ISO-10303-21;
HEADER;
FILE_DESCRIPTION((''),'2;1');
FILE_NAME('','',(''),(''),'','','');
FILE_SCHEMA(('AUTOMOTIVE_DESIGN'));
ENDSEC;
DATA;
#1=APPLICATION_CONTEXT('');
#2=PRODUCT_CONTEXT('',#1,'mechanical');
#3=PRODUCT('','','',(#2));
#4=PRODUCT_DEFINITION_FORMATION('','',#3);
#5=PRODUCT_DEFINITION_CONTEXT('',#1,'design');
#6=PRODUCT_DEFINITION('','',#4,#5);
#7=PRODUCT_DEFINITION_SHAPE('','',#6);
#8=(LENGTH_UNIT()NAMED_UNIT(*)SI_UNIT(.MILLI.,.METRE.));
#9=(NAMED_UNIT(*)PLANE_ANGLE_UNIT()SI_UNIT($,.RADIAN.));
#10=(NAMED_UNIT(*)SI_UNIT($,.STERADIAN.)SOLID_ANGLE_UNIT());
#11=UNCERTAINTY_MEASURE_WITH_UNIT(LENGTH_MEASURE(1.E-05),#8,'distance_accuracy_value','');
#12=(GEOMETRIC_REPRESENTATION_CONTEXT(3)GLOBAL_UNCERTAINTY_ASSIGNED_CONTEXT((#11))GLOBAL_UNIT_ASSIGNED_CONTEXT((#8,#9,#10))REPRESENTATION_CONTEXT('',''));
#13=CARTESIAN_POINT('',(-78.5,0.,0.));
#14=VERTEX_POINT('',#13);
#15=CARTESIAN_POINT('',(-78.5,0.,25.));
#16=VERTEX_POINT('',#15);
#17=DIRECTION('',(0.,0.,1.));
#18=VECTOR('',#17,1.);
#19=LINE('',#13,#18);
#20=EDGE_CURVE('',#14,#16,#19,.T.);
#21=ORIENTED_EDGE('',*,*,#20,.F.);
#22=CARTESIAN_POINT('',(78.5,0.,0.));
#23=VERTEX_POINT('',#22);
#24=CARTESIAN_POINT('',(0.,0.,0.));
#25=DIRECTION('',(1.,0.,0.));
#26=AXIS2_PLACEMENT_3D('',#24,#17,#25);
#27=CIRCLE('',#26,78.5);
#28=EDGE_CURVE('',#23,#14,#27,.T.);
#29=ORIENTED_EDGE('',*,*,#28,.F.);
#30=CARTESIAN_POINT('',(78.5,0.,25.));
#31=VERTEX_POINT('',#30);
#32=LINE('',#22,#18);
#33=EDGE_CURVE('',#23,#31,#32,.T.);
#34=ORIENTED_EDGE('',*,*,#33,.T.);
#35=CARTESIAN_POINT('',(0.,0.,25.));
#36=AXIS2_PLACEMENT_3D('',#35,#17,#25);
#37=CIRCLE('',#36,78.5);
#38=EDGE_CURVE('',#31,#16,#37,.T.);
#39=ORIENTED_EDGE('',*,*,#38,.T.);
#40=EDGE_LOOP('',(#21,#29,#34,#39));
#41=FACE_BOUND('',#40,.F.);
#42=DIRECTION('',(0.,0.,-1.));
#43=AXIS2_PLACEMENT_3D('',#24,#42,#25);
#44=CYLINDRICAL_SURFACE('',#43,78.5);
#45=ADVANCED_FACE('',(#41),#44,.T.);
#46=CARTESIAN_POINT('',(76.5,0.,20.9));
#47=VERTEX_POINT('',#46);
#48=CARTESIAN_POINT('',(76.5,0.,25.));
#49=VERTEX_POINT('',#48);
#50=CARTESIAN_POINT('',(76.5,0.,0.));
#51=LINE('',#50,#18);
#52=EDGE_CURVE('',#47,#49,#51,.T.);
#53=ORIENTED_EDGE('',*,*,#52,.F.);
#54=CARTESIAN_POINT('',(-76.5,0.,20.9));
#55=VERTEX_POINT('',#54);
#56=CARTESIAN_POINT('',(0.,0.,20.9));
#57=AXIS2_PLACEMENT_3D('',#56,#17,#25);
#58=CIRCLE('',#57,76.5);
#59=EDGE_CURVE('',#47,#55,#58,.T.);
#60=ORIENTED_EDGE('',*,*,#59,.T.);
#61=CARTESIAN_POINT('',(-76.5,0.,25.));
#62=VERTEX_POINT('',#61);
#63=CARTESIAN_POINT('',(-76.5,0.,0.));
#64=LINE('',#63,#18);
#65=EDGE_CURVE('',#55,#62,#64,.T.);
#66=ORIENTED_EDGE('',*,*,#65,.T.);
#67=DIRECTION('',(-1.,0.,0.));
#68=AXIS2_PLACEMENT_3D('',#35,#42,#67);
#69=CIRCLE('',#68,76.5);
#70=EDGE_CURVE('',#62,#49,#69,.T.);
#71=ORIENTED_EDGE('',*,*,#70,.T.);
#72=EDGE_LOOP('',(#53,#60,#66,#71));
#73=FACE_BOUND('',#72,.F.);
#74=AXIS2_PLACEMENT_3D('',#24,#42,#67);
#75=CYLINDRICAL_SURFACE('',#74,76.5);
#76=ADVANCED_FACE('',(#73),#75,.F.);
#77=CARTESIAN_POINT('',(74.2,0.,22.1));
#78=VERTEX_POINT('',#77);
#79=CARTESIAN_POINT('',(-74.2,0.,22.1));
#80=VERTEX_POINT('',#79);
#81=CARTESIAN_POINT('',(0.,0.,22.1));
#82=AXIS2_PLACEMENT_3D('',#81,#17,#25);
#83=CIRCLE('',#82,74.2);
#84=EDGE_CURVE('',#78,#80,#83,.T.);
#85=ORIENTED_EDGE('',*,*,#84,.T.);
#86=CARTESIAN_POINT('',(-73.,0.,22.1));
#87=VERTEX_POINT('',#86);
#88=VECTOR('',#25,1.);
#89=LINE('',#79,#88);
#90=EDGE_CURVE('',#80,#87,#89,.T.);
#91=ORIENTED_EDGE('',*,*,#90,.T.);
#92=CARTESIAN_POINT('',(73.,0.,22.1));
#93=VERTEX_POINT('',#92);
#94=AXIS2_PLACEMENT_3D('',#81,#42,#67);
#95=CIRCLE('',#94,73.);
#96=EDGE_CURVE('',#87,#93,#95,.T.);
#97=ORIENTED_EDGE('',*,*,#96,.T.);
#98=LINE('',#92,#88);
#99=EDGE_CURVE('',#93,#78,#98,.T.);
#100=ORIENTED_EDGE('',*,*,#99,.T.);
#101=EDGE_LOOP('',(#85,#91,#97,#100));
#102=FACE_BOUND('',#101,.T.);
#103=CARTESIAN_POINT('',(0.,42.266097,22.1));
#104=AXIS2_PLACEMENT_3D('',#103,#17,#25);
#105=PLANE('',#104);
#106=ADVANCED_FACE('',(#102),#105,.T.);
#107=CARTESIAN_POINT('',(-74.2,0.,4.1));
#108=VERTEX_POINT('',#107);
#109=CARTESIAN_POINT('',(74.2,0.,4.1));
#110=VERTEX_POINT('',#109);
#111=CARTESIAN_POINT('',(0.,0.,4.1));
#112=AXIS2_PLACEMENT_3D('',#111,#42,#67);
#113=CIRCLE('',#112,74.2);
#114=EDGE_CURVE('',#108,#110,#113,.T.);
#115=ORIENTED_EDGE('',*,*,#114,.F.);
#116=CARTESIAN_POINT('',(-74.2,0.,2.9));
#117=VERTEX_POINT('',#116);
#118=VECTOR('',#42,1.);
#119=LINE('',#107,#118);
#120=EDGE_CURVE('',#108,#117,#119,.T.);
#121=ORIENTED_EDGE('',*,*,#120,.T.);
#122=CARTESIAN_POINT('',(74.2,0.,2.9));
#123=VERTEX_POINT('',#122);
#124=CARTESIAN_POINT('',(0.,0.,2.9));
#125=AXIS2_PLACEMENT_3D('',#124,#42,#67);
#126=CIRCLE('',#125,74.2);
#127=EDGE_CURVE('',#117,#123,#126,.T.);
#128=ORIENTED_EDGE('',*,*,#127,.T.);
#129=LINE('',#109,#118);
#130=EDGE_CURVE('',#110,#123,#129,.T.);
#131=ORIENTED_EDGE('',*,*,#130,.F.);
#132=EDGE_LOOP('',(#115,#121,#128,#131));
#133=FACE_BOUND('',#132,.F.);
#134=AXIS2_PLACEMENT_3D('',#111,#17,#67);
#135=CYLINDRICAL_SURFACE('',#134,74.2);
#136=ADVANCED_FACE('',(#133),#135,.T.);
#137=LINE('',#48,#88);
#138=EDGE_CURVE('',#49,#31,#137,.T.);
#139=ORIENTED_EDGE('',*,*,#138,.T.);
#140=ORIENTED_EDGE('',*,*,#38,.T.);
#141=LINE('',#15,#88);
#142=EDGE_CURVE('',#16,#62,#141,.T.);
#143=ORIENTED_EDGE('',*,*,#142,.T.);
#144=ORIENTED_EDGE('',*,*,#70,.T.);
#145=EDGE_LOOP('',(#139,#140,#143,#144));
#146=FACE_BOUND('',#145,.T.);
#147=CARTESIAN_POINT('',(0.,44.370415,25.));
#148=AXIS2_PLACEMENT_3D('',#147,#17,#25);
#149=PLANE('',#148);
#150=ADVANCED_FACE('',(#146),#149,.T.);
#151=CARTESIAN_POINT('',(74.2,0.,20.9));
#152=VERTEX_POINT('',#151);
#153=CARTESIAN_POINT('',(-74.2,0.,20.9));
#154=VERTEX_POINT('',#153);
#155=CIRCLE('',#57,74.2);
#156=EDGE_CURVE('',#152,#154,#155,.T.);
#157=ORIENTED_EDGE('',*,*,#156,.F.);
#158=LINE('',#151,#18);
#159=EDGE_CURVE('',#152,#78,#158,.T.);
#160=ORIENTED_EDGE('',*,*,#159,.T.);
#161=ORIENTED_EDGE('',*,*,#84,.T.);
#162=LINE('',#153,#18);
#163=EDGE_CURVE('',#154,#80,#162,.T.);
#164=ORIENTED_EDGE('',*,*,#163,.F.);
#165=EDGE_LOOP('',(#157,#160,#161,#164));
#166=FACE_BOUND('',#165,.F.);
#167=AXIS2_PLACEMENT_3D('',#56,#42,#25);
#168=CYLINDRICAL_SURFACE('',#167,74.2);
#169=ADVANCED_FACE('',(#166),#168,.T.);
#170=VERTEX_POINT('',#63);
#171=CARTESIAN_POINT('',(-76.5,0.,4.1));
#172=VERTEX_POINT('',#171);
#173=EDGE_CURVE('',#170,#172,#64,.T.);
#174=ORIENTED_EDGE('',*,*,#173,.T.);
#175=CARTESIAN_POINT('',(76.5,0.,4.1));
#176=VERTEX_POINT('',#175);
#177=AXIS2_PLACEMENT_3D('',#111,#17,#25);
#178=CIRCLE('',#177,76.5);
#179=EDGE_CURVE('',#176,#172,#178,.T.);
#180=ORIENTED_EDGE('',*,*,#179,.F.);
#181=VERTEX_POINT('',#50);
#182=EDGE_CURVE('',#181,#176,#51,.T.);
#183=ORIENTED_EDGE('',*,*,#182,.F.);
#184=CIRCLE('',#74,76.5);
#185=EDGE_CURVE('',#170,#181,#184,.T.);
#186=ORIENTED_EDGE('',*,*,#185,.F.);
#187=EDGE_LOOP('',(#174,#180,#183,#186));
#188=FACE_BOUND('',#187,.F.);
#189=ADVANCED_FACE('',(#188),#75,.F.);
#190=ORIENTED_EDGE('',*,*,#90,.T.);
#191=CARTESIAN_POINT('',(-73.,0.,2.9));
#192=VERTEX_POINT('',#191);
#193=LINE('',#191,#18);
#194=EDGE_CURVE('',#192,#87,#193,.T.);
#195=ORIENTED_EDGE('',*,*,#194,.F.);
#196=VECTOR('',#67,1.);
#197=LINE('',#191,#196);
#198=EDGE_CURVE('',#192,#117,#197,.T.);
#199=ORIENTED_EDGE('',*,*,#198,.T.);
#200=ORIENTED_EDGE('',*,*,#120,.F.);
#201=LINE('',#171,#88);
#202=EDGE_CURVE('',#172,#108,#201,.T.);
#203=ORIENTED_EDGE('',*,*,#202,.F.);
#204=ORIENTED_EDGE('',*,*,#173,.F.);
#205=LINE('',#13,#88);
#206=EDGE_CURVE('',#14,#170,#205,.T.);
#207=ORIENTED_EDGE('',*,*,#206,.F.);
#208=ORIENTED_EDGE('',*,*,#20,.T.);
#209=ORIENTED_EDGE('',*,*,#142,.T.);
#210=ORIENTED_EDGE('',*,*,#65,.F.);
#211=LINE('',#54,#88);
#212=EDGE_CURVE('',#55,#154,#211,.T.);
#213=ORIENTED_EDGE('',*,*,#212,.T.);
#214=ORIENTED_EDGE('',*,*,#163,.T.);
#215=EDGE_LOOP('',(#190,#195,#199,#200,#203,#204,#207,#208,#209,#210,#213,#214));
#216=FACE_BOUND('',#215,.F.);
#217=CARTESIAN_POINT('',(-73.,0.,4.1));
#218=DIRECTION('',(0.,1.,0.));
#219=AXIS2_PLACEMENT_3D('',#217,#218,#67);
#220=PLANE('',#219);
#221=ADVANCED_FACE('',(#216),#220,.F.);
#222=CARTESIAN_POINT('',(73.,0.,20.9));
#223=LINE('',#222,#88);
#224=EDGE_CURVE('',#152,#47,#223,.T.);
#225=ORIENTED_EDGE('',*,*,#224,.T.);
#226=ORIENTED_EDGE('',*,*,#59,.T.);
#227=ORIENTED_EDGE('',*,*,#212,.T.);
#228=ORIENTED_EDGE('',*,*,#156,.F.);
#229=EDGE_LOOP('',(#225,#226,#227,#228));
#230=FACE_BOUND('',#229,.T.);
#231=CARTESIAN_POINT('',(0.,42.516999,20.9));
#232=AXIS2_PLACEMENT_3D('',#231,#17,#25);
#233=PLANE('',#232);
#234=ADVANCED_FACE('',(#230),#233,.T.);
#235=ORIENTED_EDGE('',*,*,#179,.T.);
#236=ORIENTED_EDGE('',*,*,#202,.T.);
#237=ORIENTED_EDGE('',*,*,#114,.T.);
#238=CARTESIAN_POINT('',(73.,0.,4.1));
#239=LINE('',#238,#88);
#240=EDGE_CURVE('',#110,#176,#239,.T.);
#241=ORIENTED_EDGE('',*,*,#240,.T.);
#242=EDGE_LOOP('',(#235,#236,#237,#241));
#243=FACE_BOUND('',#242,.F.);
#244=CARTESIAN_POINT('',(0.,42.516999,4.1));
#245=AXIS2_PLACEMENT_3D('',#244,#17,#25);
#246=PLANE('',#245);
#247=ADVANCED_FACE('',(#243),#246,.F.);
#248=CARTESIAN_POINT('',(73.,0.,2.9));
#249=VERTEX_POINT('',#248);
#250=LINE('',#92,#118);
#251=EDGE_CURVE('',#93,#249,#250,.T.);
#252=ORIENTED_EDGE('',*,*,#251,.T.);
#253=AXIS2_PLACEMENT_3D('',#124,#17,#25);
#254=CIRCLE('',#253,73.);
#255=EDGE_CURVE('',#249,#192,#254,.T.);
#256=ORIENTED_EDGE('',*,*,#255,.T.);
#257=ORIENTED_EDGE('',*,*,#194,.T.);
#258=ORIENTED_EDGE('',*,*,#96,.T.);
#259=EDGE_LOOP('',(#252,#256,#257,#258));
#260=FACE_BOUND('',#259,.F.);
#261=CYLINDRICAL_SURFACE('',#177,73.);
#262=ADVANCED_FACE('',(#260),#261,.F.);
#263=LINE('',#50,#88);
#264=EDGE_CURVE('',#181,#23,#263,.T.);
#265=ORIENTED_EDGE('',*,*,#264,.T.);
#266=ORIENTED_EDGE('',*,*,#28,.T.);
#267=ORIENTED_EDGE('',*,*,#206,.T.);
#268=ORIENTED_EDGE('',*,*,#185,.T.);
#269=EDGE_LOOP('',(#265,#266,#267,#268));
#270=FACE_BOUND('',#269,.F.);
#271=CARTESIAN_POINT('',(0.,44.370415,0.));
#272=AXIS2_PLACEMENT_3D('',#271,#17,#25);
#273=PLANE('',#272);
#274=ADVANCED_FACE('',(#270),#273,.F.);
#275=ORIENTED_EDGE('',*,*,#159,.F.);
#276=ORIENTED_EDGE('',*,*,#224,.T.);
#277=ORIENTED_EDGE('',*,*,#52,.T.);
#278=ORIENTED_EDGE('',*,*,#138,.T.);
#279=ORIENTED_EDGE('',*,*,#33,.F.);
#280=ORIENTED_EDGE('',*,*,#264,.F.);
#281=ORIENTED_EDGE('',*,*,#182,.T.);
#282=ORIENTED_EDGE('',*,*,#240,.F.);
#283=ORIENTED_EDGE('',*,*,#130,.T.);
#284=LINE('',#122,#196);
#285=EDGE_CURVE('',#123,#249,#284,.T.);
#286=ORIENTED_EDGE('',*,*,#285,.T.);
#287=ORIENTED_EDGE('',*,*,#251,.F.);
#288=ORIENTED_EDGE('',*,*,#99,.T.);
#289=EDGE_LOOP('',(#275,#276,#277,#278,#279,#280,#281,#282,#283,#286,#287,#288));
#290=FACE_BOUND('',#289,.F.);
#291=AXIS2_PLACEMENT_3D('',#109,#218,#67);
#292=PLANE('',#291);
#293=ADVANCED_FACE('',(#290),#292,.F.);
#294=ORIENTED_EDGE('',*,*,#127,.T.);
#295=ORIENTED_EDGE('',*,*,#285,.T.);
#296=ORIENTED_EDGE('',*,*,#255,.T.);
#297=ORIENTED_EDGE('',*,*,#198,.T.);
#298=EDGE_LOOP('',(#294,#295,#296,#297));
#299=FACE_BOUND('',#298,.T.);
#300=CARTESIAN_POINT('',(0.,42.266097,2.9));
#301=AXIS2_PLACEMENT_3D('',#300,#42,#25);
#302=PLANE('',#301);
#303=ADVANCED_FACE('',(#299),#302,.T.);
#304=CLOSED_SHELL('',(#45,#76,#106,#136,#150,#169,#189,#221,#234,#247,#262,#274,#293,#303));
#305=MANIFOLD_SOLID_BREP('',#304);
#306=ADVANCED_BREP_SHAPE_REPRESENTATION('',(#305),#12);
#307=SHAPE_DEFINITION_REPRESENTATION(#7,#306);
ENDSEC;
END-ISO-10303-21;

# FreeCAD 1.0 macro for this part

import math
import FreeCAD as App
import Part
import Sketcher
from FreeCAD import Vector

doc = App.newDocument("Part")
body = doc.addObject("PartDesign::Body", "Body")

# Sketch on XY plane
sketch1 = body.newObject("Sketcher::SketchObject", "Sketch")
sketch1.AttachmentSupport = (doc.getObject("XY_Plane"), [""])
sketch1.MapMode = "FlatFace"
sketch1.addGeometry([
    Part.ArcOfCircle(Part.Circle(Vector(0, 0, 0), Vector(0, 0, 1), 76.5), math.radians(0), math.radians(180)),
    Part.LineSegment(Vector(76.5, 0, 0), Vector(78.5, 0, 0)),
    Part.ArcOfCircle(Part.Circle(Vector(0, 0, 0), Vector(0, 0, 1), 78.5), math.radians(0), math.radians(180)),
    Part.LineSegment(Vector(-78.5, 0, 0), Vector(-76.5, 0, 0)),
], False)
sketch1.addConstraint([
    Sketcher.Constraint("Coincident", 0, 1, 1, 1),
    Sketcher.Constraint("Coincident", 1, 2, 2, 1),
    Sketcher.Constraint("Coincident", 2, 2, 3, 1),
    Sketcher.Constraint("Coincident", 3, 2, 0, 2),
    Sketcher.Constraint("Horizontal", 1),
    Sketcher.Constraint("Horizontal", 3),
    Sketcher.Constraint("Coincident", 0, 3, -1, 1),
    Sketcher.Constraint("Coincident", 2, 3, -1, 1),
    Sketcher.Constraint("PointOnObject", 0, 1, -1),
    Sketcher.Constraint("PointOnObject", 2, 2, -1),
    Sketcher.Constraint("Radius", 0, 76.5),
    Sketcher.Constraint("Radius", 2, 78.5),
])
pad1 = body.newObject("PartDesign::Pad", "Pad")
pad1.Profile = sketch1
pad1.Length = 25

# Sketch on XY plane
sketch2 = body.newObject("Sketcher::SketchObject", "Sketch001")
sketch2.AttachmentSupport = (doc.getObject("XY_Plane"), [""])
sketch2.MapMode = "FlatFace"
sketch2.AttachmentOffset = App.Placement(Vector(0, 0, 4.1), App.Rotation())
sketch2.addGeometry([
    Part.LineSegment(Vector(73, 0, 0), Vector(76.5, 0, 0)),
    Part.ArcOfCircle(Part.Circle(Vector(0, 0, 0), Vector(0, 0, 1), 76.5), math.radians(0), math.radians(180)),
    Part.LineSegment(Vector(-76.5, 0, 0), Vector(-73, 0, 0)),
    Part.ArcOfCircle(Part.Circle(Vector(0, 0, 0), Vector(0, 0, 1), 73), math.radians(0), math.radians(180)),
], False)
sketch2.addConstraint([
    Sketcher.Constraint("Coincident", 0, 2, 1, 1),
    Sketcher.Constraint("Coincident", 1, 2, 2, 1),
    Sketcher.Constraint("Coincident", 2, 2, 3, 2),
    Sketcher.Constraint("Coincident", 3, 1, 0, 1),
    Sketcher.Constraint("Horizontal", 0),
    Sketcher.Constraint("Horizontal", 2),
    Sketcher.Constraint("Coincident", 1, 3, -1, 1),
    Sketcher.Constraint("Coincident", 3, 3, -1, 1),
    Sketcher.Constraint("PointOnObject", 0, 2, -1),
    Sketcher.Constraint("PointOnObject", 1, 2, -1),
    Sketcher.Constraint("Radius", 3, 73.0),
    Sketcher.Constraint("Radius", 1, 76.5),
])
pad2 = body.newObject("PartDesign::Pad", "Pad001")
pad2.Profile = sketch2
pad2.Length = 16.8

# Sketch on XY plane
sketch3 = body.newObject("Sketcher::SketchObject", "Sketch002")
sketch3.AttachmentSupport = (doc.getObject("XY_Plane"), [""])
sketch3.MapMode = "FlatFace"
sketch3.AttachmentOffset = App.Placement(Vector(0, 0, 20.9), App.Rotation())
sketch3.addGeometry([
    Part.LineSegment(Vector(73, 0, 0), Vector(74.2, 0, 0)),
    Part.ArcOfCircle(Part.Circle(Vector(0, 0, 0), Vector(0, 0, 1), 74.2), math.radians(0), math.radians(180)),
    Part.LineSegment(Vector(-74.2, 0, 0), Vector(-73, 0, 0)),
    Part.ArcOfCircle(Part.Circle(Vector(0, 0, 0), Vector(0, 0, 1), 73), math.radians(0), math.radians(180)),
], False)
sketch3.addConstraint([
    Sketcher.Constraint("Coincident", 0, 2, 1, 1),
    Sketcher.Constraint("Coincident", 1, 2, 2, 1),
    Sketcher.Constraint("Coincident", 2, 2, 3, 2),
    Sketcher.Constraint("Coincident", 3, 1, 0, 1),
    Sketcher.Constraint("Horizontal", 0),
    Sketcher.Constraint("Horizontal", 2),
    Sketcher.Constraint("Coincident", 1, 3, -1, 1),
    Sketcher.Constraint("Coincident", 3, 3, -1, 1),
    Sketcher.Constraint("PointOnObject", 0, 2, -1),
    Sketcher.Constraint("PointOnObject", 1, 2, -1),
    Sketcher.Constraint("Radius", 3, 73.0),
    Sketcher.Constraint("Radius", 1, 74.2),
])
pad3 = body.newObject("PartDesign::Pad", "Pad002")
pad3.Profile = sketch3
pad3.Length = 1.2

# Sketch on XY plane
sketch4 = body.newObject("Sketcher::SketchObject", "Sketch003")
sketch4.AttachmentSupport = (doc.getObject("XY_Plane"), [""])
sketch4.MapMode = "FlatFace"
sketch4.AttachmentOffset = App.Placement(Vector(0, 0, 4.1), App.Rotation())
sketch4.addGeometry([
    Part.ArcOfCircle(Part.Circle(Vector(0, 0, 0), Vector(0, 0, 1), 74.2), math.radians(0), math.radians(180)),
    Part.LineSegment(Vector(74.2, 0, 0), Vector(73, 0, 0)),
    Part.ArcOfCircle(Part.Circle(Vector(0, 0, 0), Vector(0, 0, 1), 73), math.radians(0), math.radians(180)),
    Part.LineSegment(Vector(-73, 0, 0), Vector(-74.2, 0, 0)),
], False)
sketch4.addConstraint([
    Sketcher.Constraint("Coincident", 0, 1, 1, 1),
    Sketcher.Constraint("Coincident", 1, 2, 2, 1),
    Sketcher.Constraint("Coincident", 2, 2, 3, 1),
    Sketcher.Constraint("Coincident", 3, 2, 0, 2),
    Sketcher.Constraint("Horizontal", 1),
    Sketcher.Constraint("Horizontal", 3),
    Sketcher.Constraint("Coincident", 0, 3, -1, 1),
    Sketcher.Constraint("Coincident", 2, 3, -1, 1),
    Sketcher.Constraint("PointOnObject", 0, 1, -1),
    Sketcher.Constraint("PointOnObject", 2, 2, -1),
    Sketcher.Constraint("Radius", 2, 73.0),
    Sketcher.Constraint("Radius", 0, 74.2),
])
pad4 = body.newObject("PartDesign::Pad", "Pad003")
pad4.Profile = sketch4
pad4.Length = 1.2
pad4.Reversed = True

doc.recompute()
